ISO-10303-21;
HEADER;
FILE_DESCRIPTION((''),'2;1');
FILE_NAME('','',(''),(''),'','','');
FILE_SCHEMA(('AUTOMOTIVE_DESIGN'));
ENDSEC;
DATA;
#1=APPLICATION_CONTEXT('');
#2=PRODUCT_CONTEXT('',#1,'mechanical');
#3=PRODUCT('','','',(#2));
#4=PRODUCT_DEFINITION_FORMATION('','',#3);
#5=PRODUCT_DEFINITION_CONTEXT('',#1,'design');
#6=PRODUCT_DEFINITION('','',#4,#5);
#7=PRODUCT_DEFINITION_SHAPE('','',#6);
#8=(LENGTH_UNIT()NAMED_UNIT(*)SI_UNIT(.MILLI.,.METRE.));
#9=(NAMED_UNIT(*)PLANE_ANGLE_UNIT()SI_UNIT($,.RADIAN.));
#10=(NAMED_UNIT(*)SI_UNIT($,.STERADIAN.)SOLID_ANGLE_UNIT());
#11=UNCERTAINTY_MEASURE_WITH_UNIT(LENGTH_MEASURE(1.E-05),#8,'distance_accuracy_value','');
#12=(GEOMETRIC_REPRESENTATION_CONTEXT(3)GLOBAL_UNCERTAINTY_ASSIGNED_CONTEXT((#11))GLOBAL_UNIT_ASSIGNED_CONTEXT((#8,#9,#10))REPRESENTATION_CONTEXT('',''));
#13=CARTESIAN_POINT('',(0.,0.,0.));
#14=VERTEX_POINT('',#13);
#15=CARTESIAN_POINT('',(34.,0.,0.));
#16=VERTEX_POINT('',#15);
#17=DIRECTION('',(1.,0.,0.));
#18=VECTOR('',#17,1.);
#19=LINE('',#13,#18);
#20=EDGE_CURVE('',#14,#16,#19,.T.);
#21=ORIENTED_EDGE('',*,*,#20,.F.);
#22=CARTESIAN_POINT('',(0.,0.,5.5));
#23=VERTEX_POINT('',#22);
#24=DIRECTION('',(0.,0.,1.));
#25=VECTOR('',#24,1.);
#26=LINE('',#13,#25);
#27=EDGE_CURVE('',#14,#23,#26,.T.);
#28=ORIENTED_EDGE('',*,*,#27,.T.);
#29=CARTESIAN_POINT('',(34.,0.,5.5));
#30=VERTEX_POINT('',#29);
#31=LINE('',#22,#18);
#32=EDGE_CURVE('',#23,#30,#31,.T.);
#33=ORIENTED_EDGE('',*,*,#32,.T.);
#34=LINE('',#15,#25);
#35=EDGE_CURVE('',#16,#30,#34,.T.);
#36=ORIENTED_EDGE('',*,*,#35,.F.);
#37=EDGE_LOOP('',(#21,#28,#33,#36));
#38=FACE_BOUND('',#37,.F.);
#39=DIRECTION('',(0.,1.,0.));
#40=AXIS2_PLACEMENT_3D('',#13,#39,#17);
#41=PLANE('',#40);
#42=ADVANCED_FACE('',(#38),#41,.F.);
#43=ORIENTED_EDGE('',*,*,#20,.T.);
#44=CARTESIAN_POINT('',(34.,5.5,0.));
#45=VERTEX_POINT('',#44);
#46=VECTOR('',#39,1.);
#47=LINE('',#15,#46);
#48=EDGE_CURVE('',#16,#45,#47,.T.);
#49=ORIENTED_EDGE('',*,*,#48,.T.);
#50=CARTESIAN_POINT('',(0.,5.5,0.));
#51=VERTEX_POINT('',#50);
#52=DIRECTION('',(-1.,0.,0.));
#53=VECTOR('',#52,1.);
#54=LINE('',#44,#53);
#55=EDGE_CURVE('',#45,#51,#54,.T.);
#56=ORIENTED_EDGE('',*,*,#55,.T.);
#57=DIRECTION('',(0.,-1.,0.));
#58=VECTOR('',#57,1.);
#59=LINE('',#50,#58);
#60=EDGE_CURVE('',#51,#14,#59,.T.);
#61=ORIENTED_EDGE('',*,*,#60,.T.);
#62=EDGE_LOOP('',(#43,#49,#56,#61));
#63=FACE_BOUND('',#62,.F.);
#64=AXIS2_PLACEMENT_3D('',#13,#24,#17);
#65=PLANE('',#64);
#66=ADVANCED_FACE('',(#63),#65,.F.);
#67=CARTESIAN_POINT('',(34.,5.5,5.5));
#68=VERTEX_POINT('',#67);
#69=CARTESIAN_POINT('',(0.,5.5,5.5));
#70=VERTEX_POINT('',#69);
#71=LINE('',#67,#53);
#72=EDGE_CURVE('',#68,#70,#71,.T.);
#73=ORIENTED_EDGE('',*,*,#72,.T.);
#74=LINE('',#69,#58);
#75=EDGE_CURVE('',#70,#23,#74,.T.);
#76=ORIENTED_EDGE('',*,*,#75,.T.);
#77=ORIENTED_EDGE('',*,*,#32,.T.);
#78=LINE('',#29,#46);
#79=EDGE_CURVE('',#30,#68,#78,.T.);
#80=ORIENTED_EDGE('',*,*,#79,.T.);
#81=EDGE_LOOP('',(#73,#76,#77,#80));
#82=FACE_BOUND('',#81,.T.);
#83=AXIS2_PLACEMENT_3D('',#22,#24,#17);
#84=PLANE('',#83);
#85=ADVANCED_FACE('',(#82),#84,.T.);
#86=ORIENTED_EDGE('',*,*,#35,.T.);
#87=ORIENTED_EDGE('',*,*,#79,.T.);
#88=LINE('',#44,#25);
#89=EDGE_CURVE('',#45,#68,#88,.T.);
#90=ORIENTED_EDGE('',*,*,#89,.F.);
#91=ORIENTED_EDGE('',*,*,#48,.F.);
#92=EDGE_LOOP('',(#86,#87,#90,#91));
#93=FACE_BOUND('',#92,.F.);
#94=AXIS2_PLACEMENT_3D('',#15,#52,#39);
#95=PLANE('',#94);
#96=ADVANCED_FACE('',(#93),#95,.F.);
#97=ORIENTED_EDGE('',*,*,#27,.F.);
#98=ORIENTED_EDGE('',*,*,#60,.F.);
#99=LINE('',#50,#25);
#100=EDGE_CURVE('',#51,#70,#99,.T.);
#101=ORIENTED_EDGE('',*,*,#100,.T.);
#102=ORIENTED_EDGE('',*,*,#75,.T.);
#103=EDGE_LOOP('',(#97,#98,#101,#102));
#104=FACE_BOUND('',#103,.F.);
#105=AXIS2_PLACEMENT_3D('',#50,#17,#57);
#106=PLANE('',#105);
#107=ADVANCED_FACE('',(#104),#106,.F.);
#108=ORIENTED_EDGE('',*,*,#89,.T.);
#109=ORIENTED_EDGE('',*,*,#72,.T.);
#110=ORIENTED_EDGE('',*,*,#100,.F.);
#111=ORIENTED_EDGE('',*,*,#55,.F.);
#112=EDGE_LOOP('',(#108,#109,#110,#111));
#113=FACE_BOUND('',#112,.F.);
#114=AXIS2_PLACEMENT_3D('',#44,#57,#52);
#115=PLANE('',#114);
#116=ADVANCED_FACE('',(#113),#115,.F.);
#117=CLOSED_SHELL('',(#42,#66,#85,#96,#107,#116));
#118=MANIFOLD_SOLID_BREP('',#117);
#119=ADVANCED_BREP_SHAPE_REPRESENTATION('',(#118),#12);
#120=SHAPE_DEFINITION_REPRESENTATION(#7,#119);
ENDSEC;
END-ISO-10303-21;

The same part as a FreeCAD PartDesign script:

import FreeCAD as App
import Part
import Sketcher

V = App.Vector

doc = App.newDocument("Part")
body = doc.addObject("PartDesign::Body", "Body")

# Sketch on XY plane
sketch1 = body.newObject("Sketcher::SketchObject", "Sketch")
sketch1.AttachmentSupport = (doc.getObject("XY_Plane"), [""])
sketch1.MapMode = "FlatFace"
sketch1.addGeometry([
    Part.LineSegment(V(0, 6, 0), V(0, 0, 0)),
    Part.LineSegment(V(0, 0, 0), V(34, 0, 0)),
    Part.LineSegment(V(34, 0, 0), V(34, 6, 0)),
    Part.LineSegment(V(34, 6, 0), V(0, 6, 0)),
], False)
sketch1.addConstraint([
    Sketcher.Constraint("Coincident", 0, 2, 1, 1),
    Sketcher.Constraint("Coincident", 1, 2, 2, 1),
    Sketcher.Constraint("Coincident", 2, 2, 3, 1),
    Sketcher.Constraint("Coincident", 3, 2, 0, 1),
    Sketcher.Constraint("Vertical", 0),
    Sketcher.Constraint("Horizontal", 1),
    Sketcher.Constraint("Vertical", 2),
    Sketcher.Constraint("Horizontal", 3),
    Sketcher.Constraint("Coincident", 0, 2, -1, 1),
    Sketcher.Constraint("DistanceX", 1, 1, 1, 2, 34.0),
    Sketcher.Constraint("DistanceY", 0, 2, 0, 1, 5.5),
])
pad1 = body.newObject("PartDesign::Pad", "Pad")
pad1.Profile = sketch1
pad1.Length = 5.5

doc.recompute()
